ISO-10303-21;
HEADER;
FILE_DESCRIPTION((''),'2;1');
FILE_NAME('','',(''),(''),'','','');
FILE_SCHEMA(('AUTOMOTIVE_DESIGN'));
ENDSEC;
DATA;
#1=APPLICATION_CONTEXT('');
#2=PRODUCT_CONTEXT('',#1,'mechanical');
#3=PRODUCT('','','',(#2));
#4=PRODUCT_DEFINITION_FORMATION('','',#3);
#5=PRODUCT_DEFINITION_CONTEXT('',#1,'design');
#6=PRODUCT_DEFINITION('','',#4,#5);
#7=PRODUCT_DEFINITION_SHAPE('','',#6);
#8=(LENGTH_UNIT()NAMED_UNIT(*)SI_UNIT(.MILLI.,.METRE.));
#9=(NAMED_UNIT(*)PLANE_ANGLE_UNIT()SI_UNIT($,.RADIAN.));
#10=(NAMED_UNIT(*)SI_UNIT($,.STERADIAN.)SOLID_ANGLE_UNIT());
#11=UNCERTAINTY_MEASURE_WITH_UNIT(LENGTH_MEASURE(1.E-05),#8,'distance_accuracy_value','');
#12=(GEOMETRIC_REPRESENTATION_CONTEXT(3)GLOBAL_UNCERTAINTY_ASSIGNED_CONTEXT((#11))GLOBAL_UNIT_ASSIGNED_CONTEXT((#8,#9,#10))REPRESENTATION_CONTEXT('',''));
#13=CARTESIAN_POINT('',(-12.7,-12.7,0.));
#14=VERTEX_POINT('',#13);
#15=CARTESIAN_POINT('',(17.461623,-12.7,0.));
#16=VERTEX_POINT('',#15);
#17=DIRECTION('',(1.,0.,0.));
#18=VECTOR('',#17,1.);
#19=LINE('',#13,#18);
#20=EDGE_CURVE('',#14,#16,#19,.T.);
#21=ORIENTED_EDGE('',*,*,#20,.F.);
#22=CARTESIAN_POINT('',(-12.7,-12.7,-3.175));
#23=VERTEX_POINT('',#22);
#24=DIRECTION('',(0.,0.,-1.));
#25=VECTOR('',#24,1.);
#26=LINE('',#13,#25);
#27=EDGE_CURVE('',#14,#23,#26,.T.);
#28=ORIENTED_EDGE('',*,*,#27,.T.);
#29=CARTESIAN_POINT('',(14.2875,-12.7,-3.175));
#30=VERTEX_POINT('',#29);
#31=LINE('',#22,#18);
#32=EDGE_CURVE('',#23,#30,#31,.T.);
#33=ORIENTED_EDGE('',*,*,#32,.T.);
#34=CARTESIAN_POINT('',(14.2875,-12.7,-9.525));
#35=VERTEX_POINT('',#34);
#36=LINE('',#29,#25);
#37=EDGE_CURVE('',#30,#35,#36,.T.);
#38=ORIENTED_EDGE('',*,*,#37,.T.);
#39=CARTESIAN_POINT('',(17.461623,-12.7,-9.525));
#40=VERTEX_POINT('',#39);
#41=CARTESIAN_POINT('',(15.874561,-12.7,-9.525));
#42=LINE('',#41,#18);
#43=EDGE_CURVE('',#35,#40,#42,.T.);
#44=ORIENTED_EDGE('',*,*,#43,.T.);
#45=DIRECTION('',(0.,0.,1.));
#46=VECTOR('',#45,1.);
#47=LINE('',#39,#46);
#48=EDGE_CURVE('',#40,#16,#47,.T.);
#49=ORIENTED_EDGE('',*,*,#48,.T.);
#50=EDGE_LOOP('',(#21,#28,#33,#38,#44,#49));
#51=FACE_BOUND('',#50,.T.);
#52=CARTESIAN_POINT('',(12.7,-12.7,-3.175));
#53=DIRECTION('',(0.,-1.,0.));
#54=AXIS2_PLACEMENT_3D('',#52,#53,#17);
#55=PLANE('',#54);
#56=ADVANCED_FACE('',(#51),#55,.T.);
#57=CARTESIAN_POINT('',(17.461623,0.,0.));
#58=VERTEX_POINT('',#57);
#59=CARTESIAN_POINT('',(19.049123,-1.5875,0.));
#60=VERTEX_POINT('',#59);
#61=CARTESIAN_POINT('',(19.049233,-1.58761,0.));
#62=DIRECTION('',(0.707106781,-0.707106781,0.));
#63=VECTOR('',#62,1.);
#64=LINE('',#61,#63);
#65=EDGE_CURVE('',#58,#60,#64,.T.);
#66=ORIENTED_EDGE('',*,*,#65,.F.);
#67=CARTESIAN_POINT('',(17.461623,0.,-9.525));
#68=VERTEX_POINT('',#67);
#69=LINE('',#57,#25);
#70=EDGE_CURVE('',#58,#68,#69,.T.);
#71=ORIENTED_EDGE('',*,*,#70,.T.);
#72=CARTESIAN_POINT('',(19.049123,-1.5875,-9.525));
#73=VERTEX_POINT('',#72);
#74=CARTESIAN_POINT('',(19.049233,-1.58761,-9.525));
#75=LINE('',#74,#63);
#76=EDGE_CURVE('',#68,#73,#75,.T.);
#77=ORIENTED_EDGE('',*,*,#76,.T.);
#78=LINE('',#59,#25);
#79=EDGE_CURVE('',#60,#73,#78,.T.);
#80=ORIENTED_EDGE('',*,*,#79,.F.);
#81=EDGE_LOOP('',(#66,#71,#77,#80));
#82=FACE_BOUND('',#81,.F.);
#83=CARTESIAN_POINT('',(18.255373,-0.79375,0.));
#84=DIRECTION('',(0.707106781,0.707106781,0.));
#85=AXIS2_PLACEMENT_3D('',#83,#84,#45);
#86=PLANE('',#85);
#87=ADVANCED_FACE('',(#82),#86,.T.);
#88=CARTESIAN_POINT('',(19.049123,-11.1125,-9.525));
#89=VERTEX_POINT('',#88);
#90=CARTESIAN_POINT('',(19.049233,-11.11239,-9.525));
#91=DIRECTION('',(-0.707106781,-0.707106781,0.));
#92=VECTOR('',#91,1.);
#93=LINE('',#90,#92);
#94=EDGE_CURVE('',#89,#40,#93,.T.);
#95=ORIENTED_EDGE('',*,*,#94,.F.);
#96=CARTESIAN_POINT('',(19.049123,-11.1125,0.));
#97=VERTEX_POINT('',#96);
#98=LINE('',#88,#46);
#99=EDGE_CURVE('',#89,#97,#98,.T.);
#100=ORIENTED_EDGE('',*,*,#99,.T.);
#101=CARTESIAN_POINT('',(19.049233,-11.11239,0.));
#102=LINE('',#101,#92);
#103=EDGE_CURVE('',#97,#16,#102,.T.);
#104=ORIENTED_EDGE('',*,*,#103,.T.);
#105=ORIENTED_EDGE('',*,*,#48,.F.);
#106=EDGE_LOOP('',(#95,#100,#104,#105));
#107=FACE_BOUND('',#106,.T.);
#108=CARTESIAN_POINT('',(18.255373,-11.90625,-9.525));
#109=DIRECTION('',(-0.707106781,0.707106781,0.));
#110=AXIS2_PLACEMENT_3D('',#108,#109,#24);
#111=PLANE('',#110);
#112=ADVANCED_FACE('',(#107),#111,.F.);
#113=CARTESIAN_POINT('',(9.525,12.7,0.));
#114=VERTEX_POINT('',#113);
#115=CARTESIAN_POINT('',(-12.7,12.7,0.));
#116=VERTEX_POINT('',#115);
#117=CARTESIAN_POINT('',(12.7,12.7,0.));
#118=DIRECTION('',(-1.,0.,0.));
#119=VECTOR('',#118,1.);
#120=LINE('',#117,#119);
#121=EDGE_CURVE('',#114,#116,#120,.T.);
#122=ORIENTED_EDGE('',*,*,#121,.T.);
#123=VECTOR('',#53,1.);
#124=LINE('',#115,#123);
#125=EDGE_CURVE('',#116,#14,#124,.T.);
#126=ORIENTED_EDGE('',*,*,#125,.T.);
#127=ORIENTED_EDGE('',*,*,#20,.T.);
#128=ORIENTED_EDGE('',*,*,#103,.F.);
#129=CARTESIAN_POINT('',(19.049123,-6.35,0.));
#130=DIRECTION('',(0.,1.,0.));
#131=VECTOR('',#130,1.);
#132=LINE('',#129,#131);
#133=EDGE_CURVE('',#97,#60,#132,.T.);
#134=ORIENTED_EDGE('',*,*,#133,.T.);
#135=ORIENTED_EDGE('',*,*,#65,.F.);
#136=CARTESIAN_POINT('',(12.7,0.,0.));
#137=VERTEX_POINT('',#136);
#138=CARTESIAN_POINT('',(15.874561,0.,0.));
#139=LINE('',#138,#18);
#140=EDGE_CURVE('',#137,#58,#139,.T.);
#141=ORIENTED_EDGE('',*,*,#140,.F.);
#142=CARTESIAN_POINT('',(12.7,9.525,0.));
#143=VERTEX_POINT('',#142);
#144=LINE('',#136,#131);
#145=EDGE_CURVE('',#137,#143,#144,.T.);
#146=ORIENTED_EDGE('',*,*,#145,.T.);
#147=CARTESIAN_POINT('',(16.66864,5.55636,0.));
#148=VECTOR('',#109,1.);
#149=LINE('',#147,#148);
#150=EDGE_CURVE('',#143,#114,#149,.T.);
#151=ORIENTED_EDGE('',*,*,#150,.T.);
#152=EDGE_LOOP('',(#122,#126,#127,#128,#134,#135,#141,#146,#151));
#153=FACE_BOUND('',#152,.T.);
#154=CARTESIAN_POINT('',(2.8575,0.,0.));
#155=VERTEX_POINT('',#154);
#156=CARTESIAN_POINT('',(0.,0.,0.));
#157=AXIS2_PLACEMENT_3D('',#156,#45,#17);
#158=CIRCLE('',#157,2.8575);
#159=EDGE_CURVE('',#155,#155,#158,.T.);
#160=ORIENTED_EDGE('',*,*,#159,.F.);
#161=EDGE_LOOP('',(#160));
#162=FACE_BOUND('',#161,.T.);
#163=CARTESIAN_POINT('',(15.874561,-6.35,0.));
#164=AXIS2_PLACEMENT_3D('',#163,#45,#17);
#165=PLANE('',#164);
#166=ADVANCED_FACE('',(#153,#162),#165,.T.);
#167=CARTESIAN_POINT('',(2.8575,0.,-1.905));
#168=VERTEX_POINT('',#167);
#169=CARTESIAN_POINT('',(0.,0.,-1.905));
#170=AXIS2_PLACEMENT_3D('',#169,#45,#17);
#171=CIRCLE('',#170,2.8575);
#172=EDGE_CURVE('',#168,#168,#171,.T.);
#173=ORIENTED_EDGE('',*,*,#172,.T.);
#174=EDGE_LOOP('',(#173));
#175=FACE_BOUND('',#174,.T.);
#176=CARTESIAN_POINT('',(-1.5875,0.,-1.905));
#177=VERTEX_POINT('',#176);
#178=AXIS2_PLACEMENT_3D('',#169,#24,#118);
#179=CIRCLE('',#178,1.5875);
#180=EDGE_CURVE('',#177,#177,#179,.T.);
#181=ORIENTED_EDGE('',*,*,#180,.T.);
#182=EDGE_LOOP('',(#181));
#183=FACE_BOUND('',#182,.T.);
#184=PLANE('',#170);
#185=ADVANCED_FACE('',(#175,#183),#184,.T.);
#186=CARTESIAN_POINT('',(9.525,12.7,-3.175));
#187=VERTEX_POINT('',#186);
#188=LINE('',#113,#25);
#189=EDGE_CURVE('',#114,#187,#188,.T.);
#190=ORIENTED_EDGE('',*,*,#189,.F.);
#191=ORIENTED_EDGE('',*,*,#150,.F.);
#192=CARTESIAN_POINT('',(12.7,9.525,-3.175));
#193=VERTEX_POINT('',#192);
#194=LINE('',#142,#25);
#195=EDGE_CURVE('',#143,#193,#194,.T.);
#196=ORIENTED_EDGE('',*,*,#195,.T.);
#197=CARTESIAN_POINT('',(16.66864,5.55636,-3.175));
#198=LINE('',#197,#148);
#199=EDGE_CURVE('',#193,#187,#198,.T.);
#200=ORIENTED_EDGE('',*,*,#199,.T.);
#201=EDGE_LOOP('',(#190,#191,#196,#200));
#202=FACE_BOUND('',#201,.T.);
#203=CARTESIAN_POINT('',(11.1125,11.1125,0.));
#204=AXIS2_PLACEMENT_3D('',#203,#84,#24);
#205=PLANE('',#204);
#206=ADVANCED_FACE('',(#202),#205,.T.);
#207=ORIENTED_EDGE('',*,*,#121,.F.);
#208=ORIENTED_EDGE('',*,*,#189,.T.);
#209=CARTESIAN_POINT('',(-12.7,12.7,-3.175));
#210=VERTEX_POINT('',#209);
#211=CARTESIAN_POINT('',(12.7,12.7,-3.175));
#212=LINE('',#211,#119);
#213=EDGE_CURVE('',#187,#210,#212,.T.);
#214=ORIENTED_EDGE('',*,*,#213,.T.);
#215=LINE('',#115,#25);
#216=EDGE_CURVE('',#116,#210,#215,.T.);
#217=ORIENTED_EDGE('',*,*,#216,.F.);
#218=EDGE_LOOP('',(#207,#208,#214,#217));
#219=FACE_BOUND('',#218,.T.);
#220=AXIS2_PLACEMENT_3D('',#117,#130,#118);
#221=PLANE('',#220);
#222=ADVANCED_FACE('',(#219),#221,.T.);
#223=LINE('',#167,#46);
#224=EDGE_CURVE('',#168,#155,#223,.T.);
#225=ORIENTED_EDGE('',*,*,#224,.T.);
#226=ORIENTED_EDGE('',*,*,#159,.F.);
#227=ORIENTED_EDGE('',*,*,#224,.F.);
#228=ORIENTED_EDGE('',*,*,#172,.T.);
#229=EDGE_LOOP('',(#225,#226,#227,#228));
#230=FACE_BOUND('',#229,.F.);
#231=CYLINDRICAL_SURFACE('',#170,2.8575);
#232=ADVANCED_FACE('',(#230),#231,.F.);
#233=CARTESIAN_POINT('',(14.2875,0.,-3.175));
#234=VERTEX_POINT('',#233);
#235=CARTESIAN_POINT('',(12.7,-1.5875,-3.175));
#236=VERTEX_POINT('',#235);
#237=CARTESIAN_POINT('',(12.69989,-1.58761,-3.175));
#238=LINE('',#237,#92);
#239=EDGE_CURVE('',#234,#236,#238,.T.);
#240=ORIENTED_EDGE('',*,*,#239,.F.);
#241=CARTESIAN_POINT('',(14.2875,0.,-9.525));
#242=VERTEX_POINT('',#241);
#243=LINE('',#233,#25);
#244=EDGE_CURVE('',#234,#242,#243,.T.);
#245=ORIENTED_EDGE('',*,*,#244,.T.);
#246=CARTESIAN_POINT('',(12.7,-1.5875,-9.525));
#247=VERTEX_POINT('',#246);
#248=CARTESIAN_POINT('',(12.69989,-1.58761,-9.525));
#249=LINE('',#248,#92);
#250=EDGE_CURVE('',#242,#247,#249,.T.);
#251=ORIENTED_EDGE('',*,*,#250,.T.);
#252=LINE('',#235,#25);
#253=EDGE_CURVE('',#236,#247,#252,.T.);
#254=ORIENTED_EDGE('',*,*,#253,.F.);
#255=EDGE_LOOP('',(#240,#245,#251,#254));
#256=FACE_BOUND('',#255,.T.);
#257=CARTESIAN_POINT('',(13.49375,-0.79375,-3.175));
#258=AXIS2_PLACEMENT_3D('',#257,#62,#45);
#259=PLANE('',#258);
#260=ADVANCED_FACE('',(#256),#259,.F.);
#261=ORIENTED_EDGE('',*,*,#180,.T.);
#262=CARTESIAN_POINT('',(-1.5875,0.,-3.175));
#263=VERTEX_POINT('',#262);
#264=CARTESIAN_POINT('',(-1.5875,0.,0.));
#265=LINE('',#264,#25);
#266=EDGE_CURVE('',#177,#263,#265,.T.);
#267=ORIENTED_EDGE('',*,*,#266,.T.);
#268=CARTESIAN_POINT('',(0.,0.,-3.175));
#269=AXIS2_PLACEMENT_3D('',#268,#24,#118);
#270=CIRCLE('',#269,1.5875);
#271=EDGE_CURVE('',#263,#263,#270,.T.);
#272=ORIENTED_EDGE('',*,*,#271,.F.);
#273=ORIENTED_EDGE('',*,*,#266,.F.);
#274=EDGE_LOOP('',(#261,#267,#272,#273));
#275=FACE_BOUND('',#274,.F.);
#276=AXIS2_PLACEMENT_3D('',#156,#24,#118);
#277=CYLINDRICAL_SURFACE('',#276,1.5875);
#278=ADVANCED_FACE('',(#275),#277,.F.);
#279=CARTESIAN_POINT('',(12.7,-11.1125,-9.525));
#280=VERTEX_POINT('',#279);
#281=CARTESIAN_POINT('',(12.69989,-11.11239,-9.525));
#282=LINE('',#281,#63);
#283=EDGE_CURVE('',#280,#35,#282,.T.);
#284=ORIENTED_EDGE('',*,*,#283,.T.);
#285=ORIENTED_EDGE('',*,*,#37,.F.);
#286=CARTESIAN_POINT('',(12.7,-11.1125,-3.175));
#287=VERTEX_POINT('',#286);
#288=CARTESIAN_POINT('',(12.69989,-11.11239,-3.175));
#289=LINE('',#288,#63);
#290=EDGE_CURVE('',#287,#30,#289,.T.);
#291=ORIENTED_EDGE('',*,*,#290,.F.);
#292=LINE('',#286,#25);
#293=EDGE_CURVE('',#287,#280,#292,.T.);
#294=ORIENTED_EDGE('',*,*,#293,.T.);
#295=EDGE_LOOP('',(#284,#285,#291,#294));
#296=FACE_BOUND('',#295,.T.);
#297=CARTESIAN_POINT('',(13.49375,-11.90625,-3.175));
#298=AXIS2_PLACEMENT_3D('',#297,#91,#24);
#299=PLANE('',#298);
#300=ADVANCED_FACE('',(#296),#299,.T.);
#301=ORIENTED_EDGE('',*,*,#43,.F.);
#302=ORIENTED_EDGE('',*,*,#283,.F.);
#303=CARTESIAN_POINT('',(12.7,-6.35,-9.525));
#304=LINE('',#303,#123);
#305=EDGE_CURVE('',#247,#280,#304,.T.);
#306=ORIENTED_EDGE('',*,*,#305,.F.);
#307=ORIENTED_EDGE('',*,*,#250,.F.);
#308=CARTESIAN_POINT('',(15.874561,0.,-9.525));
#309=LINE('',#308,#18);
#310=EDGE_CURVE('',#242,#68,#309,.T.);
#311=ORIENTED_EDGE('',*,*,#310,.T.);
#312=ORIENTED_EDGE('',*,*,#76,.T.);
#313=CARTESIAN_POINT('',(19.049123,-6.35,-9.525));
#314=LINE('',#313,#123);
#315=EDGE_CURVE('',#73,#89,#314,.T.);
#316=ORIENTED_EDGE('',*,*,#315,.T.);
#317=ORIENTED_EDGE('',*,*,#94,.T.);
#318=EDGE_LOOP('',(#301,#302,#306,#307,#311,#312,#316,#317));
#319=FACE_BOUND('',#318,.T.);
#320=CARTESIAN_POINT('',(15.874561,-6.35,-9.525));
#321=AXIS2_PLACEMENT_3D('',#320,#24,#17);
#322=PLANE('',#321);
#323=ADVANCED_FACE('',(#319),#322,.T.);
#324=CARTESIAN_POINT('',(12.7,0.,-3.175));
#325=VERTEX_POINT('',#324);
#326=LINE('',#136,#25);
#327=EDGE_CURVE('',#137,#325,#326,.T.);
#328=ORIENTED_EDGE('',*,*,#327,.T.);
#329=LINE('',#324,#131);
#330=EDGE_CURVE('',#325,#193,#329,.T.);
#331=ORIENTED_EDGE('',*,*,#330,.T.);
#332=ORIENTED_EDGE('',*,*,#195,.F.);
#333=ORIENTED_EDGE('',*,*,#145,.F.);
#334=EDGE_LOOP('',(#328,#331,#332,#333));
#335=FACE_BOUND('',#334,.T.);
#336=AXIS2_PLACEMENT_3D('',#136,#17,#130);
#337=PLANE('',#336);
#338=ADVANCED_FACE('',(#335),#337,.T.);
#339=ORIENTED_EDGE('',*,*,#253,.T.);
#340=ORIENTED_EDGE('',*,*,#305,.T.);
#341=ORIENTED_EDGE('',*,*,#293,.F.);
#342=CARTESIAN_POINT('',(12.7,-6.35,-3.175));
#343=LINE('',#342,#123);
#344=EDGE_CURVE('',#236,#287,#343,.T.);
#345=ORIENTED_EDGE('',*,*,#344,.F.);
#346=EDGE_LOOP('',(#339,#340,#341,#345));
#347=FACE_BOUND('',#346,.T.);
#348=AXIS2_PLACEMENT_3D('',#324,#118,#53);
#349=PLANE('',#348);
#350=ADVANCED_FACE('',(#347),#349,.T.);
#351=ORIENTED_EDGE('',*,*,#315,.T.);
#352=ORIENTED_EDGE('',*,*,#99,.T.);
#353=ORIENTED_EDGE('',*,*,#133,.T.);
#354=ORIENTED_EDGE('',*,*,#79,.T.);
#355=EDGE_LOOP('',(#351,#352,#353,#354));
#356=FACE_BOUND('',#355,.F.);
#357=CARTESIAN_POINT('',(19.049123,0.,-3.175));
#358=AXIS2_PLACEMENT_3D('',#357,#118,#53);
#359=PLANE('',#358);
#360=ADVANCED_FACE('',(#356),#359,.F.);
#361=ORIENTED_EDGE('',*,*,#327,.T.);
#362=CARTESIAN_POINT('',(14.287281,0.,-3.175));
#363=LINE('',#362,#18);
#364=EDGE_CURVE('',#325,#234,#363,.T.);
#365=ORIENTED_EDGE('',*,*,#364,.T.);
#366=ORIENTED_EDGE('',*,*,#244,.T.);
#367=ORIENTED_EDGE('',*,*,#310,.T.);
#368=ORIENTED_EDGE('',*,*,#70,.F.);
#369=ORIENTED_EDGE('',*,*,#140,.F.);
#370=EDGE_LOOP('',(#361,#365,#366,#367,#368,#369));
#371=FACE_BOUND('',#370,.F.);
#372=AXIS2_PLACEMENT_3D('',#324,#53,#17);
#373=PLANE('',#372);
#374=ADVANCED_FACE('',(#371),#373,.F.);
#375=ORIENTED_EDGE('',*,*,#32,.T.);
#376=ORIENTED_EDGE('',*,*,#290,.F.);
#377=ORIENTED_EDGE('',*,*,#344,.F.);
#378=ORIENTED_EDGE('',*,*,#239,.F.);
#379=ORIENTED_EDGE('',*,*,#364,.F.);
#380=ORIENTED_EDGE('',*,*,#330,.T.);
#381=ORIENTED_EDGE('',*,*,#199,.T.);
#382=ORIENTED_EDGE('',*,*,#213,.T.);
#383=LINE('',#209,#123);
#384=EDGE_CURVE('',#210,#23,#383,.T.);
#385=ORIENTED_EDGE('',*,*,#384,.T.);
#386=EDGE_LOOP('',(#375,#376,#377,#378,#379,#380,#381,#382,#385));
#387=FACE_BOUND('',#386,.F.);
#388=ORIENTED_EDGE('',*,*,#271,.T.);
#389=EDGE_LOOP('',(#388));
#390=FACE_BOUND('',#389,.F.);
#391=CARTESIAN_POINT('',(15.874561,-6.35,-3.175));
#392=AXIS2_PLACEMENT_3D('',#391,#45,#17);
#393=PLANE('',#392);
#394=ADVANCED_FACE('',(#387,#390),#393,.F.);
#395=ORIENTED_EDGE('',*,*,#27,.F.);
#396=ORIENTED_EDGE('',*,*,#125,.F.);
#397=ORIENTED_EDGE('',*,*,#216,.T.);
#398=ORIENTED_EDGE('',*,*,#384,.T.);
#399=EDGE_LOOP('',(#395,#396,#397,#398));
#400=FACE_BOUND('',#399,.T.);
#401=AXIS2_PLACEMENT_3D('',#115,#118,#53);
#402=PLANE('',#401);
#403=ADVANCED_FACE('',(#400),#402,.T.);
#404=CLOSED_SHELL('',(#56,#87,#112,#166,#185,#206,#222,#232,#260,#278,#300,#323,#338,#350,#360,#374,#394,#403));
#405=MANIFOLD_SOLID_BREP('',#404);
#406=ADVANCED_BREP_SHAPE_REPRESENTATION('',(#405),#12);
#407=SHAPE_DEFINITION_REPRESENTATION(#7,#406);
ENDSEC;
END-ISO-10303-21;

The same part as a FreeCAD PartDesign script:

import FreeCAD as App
import Part
import Sketcher
from FreeCAD import Vector
Q = App.Units.Quantity


def edges_at(feature, points):
    """Names of the edges that pass closest to the given points."""
    edges = feature.Shape.Edges
    near = lambda p: min(range(len(edges)), key=lambda i: edges[i].distToShape(Part.Vertex(*p))[0])
    return sorted({f"Edge{near(p) + 1}" for p in points})


def add_polygon(sketch, points):
    """Adds a closed chain of lines whose ends are joined by coincident constraints."""
    first, n = sketch.GeometryCount, len(points)
    for a, b in zip(points, points[1:] + points[:1]):
        sketch.addGeometry(Part.LineSegment(App.Vector(*a, 0), App.Vector(*b, 0)), False)
    for i in range(n):
        sketch.addConstraint(Sketcher.Constraint("Coincident", first + i, 2, first + (i + 1) % n, 1))

doc = App.newDocument("Part")
body = doc.addObject("PartDesign::Body", "Body")

# Sketch on XY plane
sketch1 = body.newObject("Sketcher::SketchObject", "Sketch")
sketch1.AttachmentSupport = (doc.getObject("XY_Plane"), [""])
sketch1.MapMode = "FlatFace"
add_polygon(sketch1, [(19.049123, -12.7), (19.049123, 0), (12.7, 0), (12.7, 12.7), (-12.7, 12.7), (-12.7, -12.7)])  # lines 0-5
sketch1.addConstraint([
    Sketcher.Constraint("Vertical", 0),
    Sketcher.Constraint("Horizontal", 1),
    Sketcher.Constraint("Vertical", 2),
    Sketcher.Constraint("Horizontal", 3),
    Sketcher.Constraint("Vertical", 4),
    Sketcher.Constraint("Horizontal", 5),
    Sketcher.Constraint("Symmetric", 2, 2, 4, 2, -1, 1),
    Sketcher.Constraint("PointOnObject", 0, 2, -1),
    Sketcher.Constraint("Equal", 3, 4),
    Sketcher.Constraint("DistanceX", 3, 2, 3, 1, Q("1 in")),
    Sketcher.Constraint("DistanceX", 1, 2, 1, 1, 6.349123),
])
pad1 = body.newObject("PartDesign::Pad", "Pad")
pad1.Profile = sketch1
pad1.Length = Q("0.125 in")
pad1.Reversed = True

# Sketch on XY plane
sketch2 = body.newObject("Sketcher::SketchObject", "Sketch001")
sketch2.AttachmentSupport = (doc.getObject("XY_Plane"), [""])
sketch2.MapMode = "FlatFace"
sketch2.AttachmentOffset = App.Placement(Vector(0, 0, -0.125 * 25.4), App.Rotation())
add_polygon(sketch2, [(12.7, -12.7), (12.7, 0), (19.049123, 0), (19.049123, -12.7)])  # lines 0-3
sketch2.addConstraint([
    Sketcher.Constraint("Vertical", 0),
    Sketcher.Constraint("Horizontal", 1),
    Sketcher.Constraint("Vertical", 2),
    Sketcher.Constraint("Horizontal", 3),
    Sketcher.Constraint("PointOnObject", 0, 2, -1),
    Sketcher.Constraint("DistanceY", 0, 1, 0, 2, Q("0.5 in")),
    Sketcher.Constraint("DistanceX", -1, 1, 0, 2, Q("0.5 in")),
    Sketcher.Constraint("DistanceX", 1, 1, 1, 2, 6.349123),
])
pad2 = body.newObject("PartDesign::Pad", "Pad001")
pad2.Profile = sketch2
pad2.Length = Q("0.25 in")
pad2.Reversed = True

# Sketch on XY plane
sketch3 = body.newObject("Sketcher::SketchObject", "Sketch002")
sketch3.AttachmentSupport = (doc.getObject("XY_Plane"), [""])
sketch3.MapMode = "FlatFace"
sketch3.addGeometry(Part.Circle(Vector(0, 0, 0), Vector(0, 0, 1), 1.5875), False)
sketch3.addConstraint([
    Sketcher.Constraint("Coincident", 0, 3, -1, 1),
    Sketcher.Constraint("Diameter", 0, Q("0.125 in")),
])
doc.recompute()
hole = body.newObject("PartDesign::Hole", "Hole")
hole.Profile = sketch3
hole.ThreadType = "None"
hole.Diameter = Q("0.125 in")
hole.DepthType = "ThroughAll"
hole.HoleCutType = "Counterbore"
hole.HoleCutDiameter = Q("0.225 in")
hole.HoleCutDepth = Q("0.075 in")
doc.recompute()

chamfer = body.newObject("PartDesign::Chamfer", "Chamfer")
chamfer.Base = (hole, edges_at(hole, [(12.7, 12.7, -1.587)]))
chamfer.Size = Q("0.125 in")
doc.recompute()

chamfer2 = body.newObject("PartDesign::Chamfer", "Chamfer001")
chamfer2.Base = (chamfer, edges_at(chamfer, [(19.049, 0, -4.763)]))
chamfer2.Size = Q("0.0625 in")
doc.recompute()

chamfer3 = body.newObject("PartDesign::Chamfer", "Chamfer002")
chamfer3.Base = (chamfer2, edges_at(chamfer2, [(19.049, -12.7, -4.763)]))
chamfer3.Size = Q("0.0625 in")
doc.recompute()

chamfer4 = body.newObject("PartDesign::Chamfer", "Chamfer003")
chamfer4.Base = (chamfer3, edges_at(chamfer3, [(12.7, 0, -6.35)]))
chamfer4.Size = Q("0.0625 in")
doc.recompute()

chamfer5 = body.newObject("PartDesign::Chamfer", "Chamfer004")
chamfer5.Base = (chamfer4, edges_at(chamfer4, [(12.7, -12.7, -6.35)]))
chamfer5.Size = Q("0.0625 in")

doc.recompute()
